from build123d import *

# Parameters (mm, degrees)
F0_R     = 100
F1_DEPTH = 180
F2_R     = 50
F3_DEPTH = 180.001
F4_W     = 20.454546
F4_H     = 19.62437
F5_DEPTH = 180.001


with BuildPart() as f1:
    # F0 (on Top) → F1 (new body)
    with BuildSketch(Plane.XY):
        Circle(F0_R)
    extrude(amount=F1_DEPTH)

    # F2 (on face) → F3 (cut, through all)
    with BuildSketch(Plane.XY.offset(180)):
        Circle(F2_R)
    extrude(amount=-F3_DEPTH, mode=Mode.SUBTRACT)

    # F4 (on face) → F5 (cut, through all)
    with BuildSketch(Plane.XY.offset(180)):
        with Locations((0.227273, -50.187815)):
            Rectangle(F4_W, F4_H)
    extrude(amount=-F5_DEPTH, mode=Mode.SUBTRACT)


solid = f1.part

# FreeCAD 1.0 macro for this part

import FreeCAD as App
import Part
import Sketcher
from FreeCAD import Vector

doc = App.newDocument("Part")
body = doc.addObject("PartDesign::Body", "Body")

sketch1 = body.newObject("Sketcher::SketchObject", "Sketch")
sketch1.AttachmentSupport = (doc.getObject("XY_Plane"), [""])
sketch1.MapMode = "FlatFace"
sketch1.addGeometry(Part.Circle(Vector(0, 0, 0), Vector(0, 0, 1), 100), False)
sketch1.addConstraint(Sketcher.Constraint("Coincident", 0, 3, -1, 1))
sketch1.addConstraint(Sketcher.Constraint("Diameter", 0, 200.0))
pad1 = body.newObject("PartDesign::Pad", "Pad")
pad1.Profile = sketch1
pad1.Length = 180

sketch2 = body.newObject("Sketcher::SketchObject", "Sketch001")
sketch2.AttachmentSupport = (doc.getObject("XY_Plane"), [""])
sketch2.MapMode = "FlatFace"
sketch2.AttachmentOffset = App.Placement(Vector(0, 0, 180), App.Rotation())
sketch2.addGeometry(Part.Circle(Vector(0, 0, 0), Vector(0, 0, 1), 50), False)
sketch2.addConstraint(Sketcher.Constraint("Coincident", 0, 3, -1, 1))
sketch2.addConstraint(Sketcher.Constraint("Diameter", 0, 100.0))
pocket1 = body.newObject("PartDesign::Pocket", "Pocket")
pocket1.Profile = sketch2
pocket1.Type = "ThroughAll"

sketch3 = body.newObject("Sketcher::SketchObject", "Sketch002")
sketch3.AttachmentSupport = (doc.getObject("XY_Plane"), [""])
sketch3.MapMode = "FlatFace"
sketch3.AttachmentOffset = App.Placement(Vector(0, 0, 180), App.Rotation())
sketch3.addGeometry(Part.LineSegment(Vector(-10, -40, 0), Vector(-10, -60, 0)), False)
sketch3.addGeometry(Part.LineSegment(Vector(-10, -60, 0), Vector(10, -60, 0)), False)
sketch3.addGeometry(Part.LineSegment(Vector(10, -60, 0), Vector(10, -40, 0)), False)
sketch3.addGeometry(Part.LineSegment(Vector(10, -40, 0), Vector(-10, -40, 0)), False)
sketch3.addConstraint(Sketcher.Constraint("Coincident", 0, 2, 1, 1))
sketch3.addConstraint(Sketcher.Constraint("Coincident", 1, 2, 2, 1))
sketch3.addConstraint(Sketcher.Constraint("Coincident", 2, 2, 3, 1))
sketch3.addConstraint(Sketcher.Constraint("Coincident", 3, 2, 0, 1))
sketch3.addConstraint(Sketcher.Constraint("Vertical", 0))
sketch3.addConstraint(Sketcher.Constraint("Horizontal", 1))
sketch3.addConstraint(Sketcher.Constraint("Vertical", 2))
sketch3.addConstraint(Sketcher.Constraint("Horizontal", 3))
sketch3.addConstraint(Sketcher.Constraint("DistanceX", 0, 2, -1, 1, 10.0))
sketch3.addConstraint(Sketcher.Constraint("DistanceY", 0, 2, -1, 1, 60.0))
sketch3.addConstraint(Sketcher.Constraint("DistanceY", 0, 2, 0, 1, 19.62437))
sketch3.addConstraint(Sketcher.Constraint("DistanceX", 1, 1, 1, 2, 20.454546))
pocket2 = body.newObject("PartDesign::Pocket", "Pocket001")
pocket2.Profile = sketch3
pocket2.Type = "ThroughAll"

doc.recompute()
